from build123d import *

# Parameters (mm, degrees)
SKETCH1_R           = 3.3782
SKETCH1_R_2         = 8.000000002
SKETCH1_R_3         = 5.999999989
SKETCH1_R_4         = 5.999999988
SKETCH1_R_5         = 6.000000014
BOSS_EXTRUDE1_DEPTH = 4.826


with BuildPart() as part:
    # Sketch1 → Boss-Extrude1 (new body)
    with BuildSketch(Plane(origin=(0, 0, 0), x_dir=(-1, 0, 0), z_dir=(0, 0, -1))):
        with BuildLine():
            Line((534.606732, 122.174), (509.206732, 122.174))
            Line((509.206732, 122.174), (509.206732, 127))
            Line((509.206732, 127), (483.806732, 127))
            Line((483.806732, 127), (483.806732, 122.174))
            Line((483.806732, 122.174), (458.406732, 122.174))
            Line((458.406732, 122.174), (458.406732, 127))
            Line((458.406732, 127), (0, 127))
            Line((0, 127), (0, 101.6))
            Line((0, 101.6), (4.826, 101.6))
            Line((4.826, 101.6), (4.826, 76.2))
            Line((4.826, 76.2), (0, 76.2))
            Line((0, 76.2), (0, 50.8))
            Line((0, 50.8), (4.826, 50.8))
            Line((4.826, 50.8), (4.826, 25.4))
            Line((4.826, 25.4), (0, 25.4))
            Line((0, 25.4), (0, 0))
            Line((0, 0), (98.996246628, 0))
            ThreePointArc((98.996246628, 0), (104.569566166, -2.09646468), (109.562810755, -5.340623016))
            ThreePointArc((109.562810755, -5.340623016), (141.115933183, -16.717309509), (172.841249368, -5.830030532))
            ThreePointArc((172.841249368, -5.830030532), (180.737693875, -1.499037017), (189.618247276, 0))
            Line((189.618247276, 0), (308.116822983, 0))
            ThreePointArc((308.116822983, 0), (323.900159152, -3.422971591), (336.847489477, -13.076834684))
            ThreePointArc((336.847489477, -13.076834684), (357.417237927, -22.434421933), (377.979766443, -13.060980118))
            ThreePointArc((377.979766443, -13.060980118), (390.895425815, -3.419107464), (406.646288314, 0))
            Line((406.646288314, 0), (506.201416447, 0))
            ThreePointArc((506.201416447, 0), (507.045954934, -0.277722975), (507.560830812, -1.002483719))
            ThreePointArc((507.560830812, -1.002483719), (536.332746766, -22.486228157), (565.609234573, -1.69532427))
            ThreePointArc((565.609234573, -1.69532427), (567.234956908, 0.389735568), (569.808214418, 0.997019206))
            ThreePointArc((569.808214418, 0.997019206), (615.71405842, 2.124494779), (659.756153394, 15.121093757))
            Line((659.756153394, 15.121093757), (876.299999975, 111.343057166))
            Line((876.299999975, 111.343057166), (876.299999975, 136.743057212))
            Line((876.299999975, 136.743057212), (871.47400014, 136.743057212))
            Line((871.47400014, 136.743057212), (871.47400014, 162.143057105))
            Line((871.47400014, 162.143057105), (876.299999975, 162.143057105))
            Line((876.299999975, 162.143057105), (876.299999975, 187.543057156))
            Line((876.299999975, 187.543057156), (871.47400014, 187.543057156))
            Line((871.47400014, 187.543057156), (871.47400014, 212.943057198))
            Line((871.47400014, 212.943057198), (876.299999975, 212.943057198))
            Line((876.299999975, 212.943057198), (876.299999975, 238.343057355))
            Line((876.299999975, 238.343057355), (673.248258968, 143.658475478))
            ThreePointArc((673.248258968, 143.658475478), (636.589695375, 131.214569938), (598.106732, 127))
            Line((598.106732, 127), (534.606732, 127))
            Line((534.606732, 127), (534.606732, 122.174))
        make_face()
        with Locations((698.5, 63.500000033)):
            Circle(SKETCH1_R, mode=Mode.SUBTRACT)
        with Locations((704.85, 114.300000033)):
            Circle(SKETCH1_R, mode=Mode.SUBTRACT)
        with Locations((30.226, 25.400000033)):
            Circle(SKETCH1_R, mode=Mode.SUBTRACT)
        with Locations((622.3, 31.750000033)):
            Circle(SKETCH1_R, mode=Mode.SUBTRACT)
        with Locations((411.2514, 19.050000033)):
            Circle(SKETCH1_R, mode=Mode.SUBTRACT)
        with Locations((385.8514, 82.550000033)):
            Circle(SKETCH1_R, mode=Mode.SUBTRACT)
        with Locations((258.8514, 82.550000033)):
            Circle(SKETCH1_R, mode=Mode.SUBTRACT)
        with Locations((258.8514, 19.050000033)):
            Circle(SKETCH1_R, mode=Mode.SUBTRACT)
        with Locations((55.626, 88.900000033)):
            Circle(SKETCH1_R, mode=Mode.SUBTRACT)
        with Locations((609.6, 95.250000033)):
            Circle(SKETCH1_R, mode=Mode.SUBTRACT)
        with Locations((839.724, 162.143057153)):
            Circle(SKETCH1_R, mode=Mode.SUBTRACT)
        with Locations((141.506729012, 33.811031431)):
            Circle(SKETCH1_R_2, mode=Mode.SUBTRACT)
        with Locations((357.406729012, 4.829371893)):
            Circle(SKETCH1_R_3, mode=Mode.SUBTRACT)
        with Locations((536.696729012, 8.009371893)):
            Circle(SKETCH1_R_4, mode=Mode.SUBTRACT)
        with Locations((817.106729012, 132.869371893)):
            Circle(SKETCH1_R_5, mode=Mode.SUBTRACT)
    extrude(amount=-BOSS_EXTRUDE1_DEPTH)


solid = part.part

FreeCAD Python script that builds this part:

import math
import FreeCAD as App
import Part
import Sketcher
from FreeCAD import Vector
Q = App.Units.Quantity

doc = App.newDocument("Part")
params = doc.addObject("Spreadsheet::Sheet", "Params")
for row, (alias, value) in enumerate([
    ("sketch1_radius", "7 in"),
    ("sketch1_radius2", "1.5 in"),
    ("sketch1_width", "1 in"),
    ("sketch1_diameter", "0.266 in"),
    ("sketch1_width2", "2.5 in"),
    ("pad1_length", "0.19 in"),
], start=1):
    params.set(f"A{row}", alias)
    params.set(f"B{row}", "=" + value)
    params.setAlias(f"B{row}", alias)

body = doc.addObject("PartDesign::Body", "Body")

sketch1 = body.newObject("Sketcher::SketchObject", "Sketch")
sketch1.AttachmentSupport = (doc.getObject("XY_Plane"), [""])
sketch1.MapMode = "FlatFace"
sketch1.addGeometry(Part.LineSegment(Vector(-534.606732, 122.174, 0), Vector(-509.206732, 122.174, 0)), False)
sketch1.addGeometry(Part.LineSegment(Vector(-509.206732, 122.174, 0), Vector(-509.206732, 127, 0)), False)
sketch1.addGeometry(Part.LineSegment(Vector(-509.206732, 127, 0), Vector(-483.806732, 127, 0)), False)
sketch1.addGeometry(Part.LineSegment(Vector(-483.806732, 127, 0), Vector(-483.806732, 122.174, 0)), False)
sketch1.addGeometry(Part.LineSegment(Vector(-483.806732, 122.174, 0), Vector(-458.406732, 122.174, 0)), False)
sketch1.addGeometry(Part.LineSegment(Vector(-458.406732, 122.174, 0), Vector(-458.406732, 127, 0)), False)
sketch1.addGeometry(Part.LineSegment(Vector(-458.406732, 127, 0), Vector(0, 127, 0)), False)
sketch1.addGeometry(Part.LineSegment(Vector(0, 127, 0), Vector(0, 101.6, 0)), False)
sketch1.addGeometry(Part.LineSegment(Vector(0, 101.6, 0), Vector(-4.826, 101.6, 0)), False)
sketch1.addGeometry(Part.LineSegment(Vector(-4.826, 101.6, 0), Vector(-4.826, 76.2, 0)), False)
sketch1.addGeometry(Part.LineSegment(Vector(-4.826, 76.2, 0), Vector(0, 76.2, 0)), False)
sketch1.addGeometry(Part.LineSegment(Vector(0, 76.2, 0), Vector(0, 50.8, 0)), False)
sketch1.addGeometry(Part.LineSegment(Vector(0, 50.8, 0), Vector(-4.826, 50.8, 0)), False)
sketch1.addGeometry(Part.LineSegment(Vector(-4.826, 50.8, 0), Vector(-4.826, 25.4, 0)), False)
sketch1.addGeometry(Part.LineSegment(Vector(-4.826, 25.4, 0), Vector(0, 25.4, 0)), False)
sketch1.addGeometry(Part.LineSegment(Vector(0, 25.4, 0), Vector(0, 0, 0)), False)
sketch1.addGeometry(Part.LineSegment(Vector(0, 0, 0), Vector(-98.996247, 0, 0)), False)
sketch1.addGeometry(Part.ArcOfCircle(Part.Circle(Vector(-92.132061, -26.704399, 0), Vector(0, 0, 1), 27.572485), math.radians(104.415421), math.radians(129.211079)), False)
sketch1.addGeometry(Part.ArcOfCircle(Part.Circle(Vector(-141.506729, 33.811031, 0), Vector(0, 0, 1), 50.529852), math.radians(-128.324824), math.radians(-50.788921)), False)
sketch1.addGeometry(Part.ArcOfCircle(Part.Circle(Vector(-189.618247, -27.054482, 0), Vector(0, 0, 1), 27.054482), math.radians(51.675176), math.radians(90)), False)
sketch1.addGeometry(Part.LineSegment(Vector(-189.618247, 0, 0), Vector(-308.116823, 0, 0)), False)
sketch1.addGeometry(Part.ArcOfCircle(Part.Circle(Vector(-308.116823, -38.1, 0), Vector(0, 0, 1), 38.1), math.radians(90), math.radians(138.945547)), False)
sketch1.addGeometry(Part.ArcOfCircle(Part.Circle(Vector(-357.406729, 4.829372, 0), Vector(0, 0, 1), 27.263796), math.radians(-138.989717), math.radians(-41.054453)), False)
sketch1.addGeometry(Part.ArcOfCircle(Part.Circle(Vector(-406.646288, -37.989441, 0), Vector(0, 0, 1), 37.989441), math.radians(41.010283), math.radians(90)), False)
sketch1.addGeometry(Part.LineSegment(Vector(-406.646288, 0, 0), Vector(-506.201416, 0, 0)), False)
sketch1.addGeometry(Part.ArcOfCircle(Part.Circle(Vector(-506.201416, -1.422956, 0), Vector(0, 0, 1), 1.422956), math.radians(90), math.radians(162.812942)), False)
sketch1.addGeometry(Part.ArcOfCircle(Part.Circle(Vector(-536.696729, 8.009372, 0), Vector(0, 0, 1), 30.497772), math.radians(-161.445292), math.radians(-17.187058)), False)
sketch1.addGeometry(Part.ArcOfCircle(Part.Circle(Vector(-569.384359, -2.962473, 0), Vector(0, 0, 1), 3.982114), math.radians(18.554708), math.radians(96.110127)), False)
sketch1.addGeometry(Part.ArcOfCircle(Part.Circle(Vector(-588.488955, 175.505197, 0), Vector(0, 0, 1), 175.505197), math.radians(-113.958126), math.radians(-83.889873)), False)
sketch1.addGeometry(Part.LineSegment(Vector(-659.756153, 15.121094, 0), Vector(-876.3, 111.343057, 0)), False)
sketch1.addGeometry(Part.LineSegment(Vector(-876.3, 111.343057, 0), Vector(-876.3, 136.743057, 0)), False)
sketch1.addGeometry(Part.LineSegment(Vector(-876.3, 136.743057, 0), Vector(-871.474, 136.743057, 0)), False)
sketch1.addGeometry(Part.LineSegment(Vector(-871.474, 136.743057, 0), Vector(-871.474, 162.143057, 0)), False)
sketch1.addGeometry(Part.LineSegment(Vector(-871.474, 162.143057, 0), Vector(-876.3, 162.143057, 0)), False)
sketch1.addGeometry(Part.LineSegment(Vector(-876.3, 162.143057, 0), Vector(-876.3, 187.543057, 0)), False)
sketch1.addGeometry(Part.LineSegment(Vector(-876.3, 187.543057, 0), Vector(-871.474, 187.543057, 0)), False)
sketch1.addGeometry(Part.LineSegment(Vector(-871.474, 187.543057, 0), Vector(-871.474, 212.943057, 0)), False)
sketch1.addGeometry(Part.LineSegment(Vector(-871.474, 212.943057, 0), Vector(-876.3, 212.943057, 0)), False)
sketch1.addGeometry(Part.LineSegment(Vector(-876.3, 212.943057, 0), Vector(-876.3, 238.343057, 0)), False)
sketch1.addGeometry(Part.LineSegment(Vector(-876.3, 238.343057, 0), Vector(-673.248259, 143.658475, 0)), False)
sketch1.addGeometry(Part.ArcOfCircle(Part.Circle(Vector(-598.106732, 304.8, 0), Vector(0, 0, 1), 177.8), math.radians(-115), math.radians(-90)), False)
sketch1.addGeometry(Part.LineSegment(Vector(-598.106732, 127, 0), Vector(-534.606732, 127, 0)), False)
sketch1.addGeometry(Part.LineSegment(Vector(-534.606732, 127, 0), Vector(-534.606732, 122.174, 0)), False)
sketch1.addGeometry(Part.Circle(Vector(-30.226, 25.4, 0), Vector(0, 0, 1), 3.3782), False)
sketch1.addGeometry(Part.Circle(Vector(-141.506729, 33.811031, 0), Vector(0, 0, 1), 8), False)
sketch1.addGeometry(Part.Circle(Vector(-258.8514, 19.05, 0), Vector(0, 0, 1), 3.3782), False)
sketch1.addGeometry(Part.Circle(Vector(-357.406729, 4.829372, 0), Vector(0, 0, 1), 6), False)
sketch1.addGeometry(Part.Circle(Vector(-411.2514, 19.05, 0), Vector(0, 0, 1), 3.3782), False)
sketch1.addGeometry(Part.Circle(Vector(-536.696729, 8.009372, 0), Vector(0, 0, 1), 6), False)
sketch1.addGeometry(Part.Circle(Vector(-622.3, 31.75, 0), Vector(0, 0, 1), 3.3782), False)
sketch1.addGeometry(Part.Circle(Vector(-698.5, 63.5, 0), Vector(0, 0, 1), 3.3782), False)
sketch1.addGeometry(Part.Circle(Vector(-55.626, 88.9, 0), Vector(0, 0, 1), 3.3782), False)
sketch1.addGeometry(Part.Circle(Vector(-258.8514, 82.55, 0), Vector(0, 0, 1), 3.3782), False)
sketch1.addGeometry(Part.Circle(Vector(-385.8514, 82.55, 0), Vector(0, 0, 1), 3.3782), False)
sketch1.addGeometry(Part.Circle(Vector(-609.6, 95.25, 0), Vector(0, 0, 1), 3.3782), False)
sketch1.addGeometry(Part.Circle(Vector(-704.85, 114.3, 0), Vector(0, 0, 1), 3.3782), False)
sketch1.addGeometry(Part.Circle(Vector(-817.106729, 132.869372, 0), Vector(0, 0, 1), 6), False)
sketch1.addGeometry(Part.Circle(Vector(-839.724, 162.143057, 0), Vector(0, 0, 1), 3.3782), False)
sketch1.addConstraint(Sketcher.Constraint("Coincident", 0, 2, 1, 1))
sketch1.addConstraint(Sketcher.Constraint("Coincident", 1, 2, 2, 1))
sketch1.addConstraint(Sketcher.Constraint("Coincident", 2, 2, 3, 1))
sketch1.addConstraint(Sketcher.Constraint("Coincident", 3, 2, 4, 1))
sketch1.addConstraint(Sketcher.Constraint("Coincident", 4, 2, 5, 1))
sketch1.addConstraint(Sketcher.Constraint("Coincident", 5, 2, 6, 1))
sketch1.addConstraint(Sketcher.Constraint("Coincident", 6, 2, 7, 1))
sketch1.addConstraint(Sketcher.Constraint("Coincident", 7, 2, 8, 1))
sketch1.addConstraint(Sketcher.Constraint("Coincident", 8, 2, 9, 1))
sketch1.addConstraint(Sketcher.Constraint("Coincident", 9, 2, 10, 1))
sketch1.addConstraint(Sketcher.Constraint("Coincident", 10, 2, 11, 1))
sketch1.addConstraint(Sketcher.Constraint("Coincident", 11, 2, 12, 1))
sketch1.addConstraint(Sketcher.Constraint("Coincident", 12, 2, 13, 1))
sketch1.addConstraint(Sketcher.Constraint("Coincident", 13, 2, 14, 1))
sketch1.addConstraint(Sketcher.Constraint("Coincident", 14, 2, 15, 1))
sketch1.addConstraint(Sketcher.Constraint("Coincident", 15, 2, 16, 1))
sketch1.addConstraint(Sketcher.Constraint("Coincident", 16, 2, 17, 1))
sketch1.addConstraint(Sketcher.Constraint("Tangent", 17, 2, 18, 2))
sketch1.addConstraint(Sketcher.Constraint("Tangent", 18, 1, 19, 1))
sketch1.addConstraint(Sketcher.Constraint("Tangent", 19, 2, 20, 1))
sketch1.addConstraint(Sketcher.Constraint("Tangent", 20, 2, 21, 1))
sketch1.addConstraint(Sketcher.Constraint("Tangent", 21, 2, 22, 2))
sketch1.addConstraint(Sketcher.Constraint("Tangent", 22, 1, 23, 1))
sketch1.addConstraint(Sketcher.Constraint("Tangent", 23, 2, 24, 1))
sketch1.addConstraint(Sketcher.Constraint("Tangent", 24, 2, 25, 1))
sketch1.addConstraint(Sketcher.Constraint("Tangent", 25, 2, 26, 2))
sketch1.addConstraint(Sketcher.Constraint("Tangent", 26, 1, 27, 1))
sketch1.addConstraint(Sketcher.Constraint("Tangent", 27, 2, 28, 2))
sketch1.addConstraint(Sketcher.Constraint("Tangent", 28, 1, 29, 1))
sketch1.addConstraint(Sketcher.Constraint("Coincident", 29, 2, 30, 1))
sketch1.addConstraint(Sketcher.Constraint("Coincident", 30, 2, 31, 1))
sketch1.addConstraint(Sketcher.Constraint("Coincident", 31, 2, 32, 1))
sketch1.addConstraint(Sketcher.Constraint("Coincident", 32, 2, 33, 1))
sketch1.addConstraint(Sketcher.Constraint("Coincident", 33, 2, 34, 1))
sketch1.addConstraint(Sketcher.Constraint("Coincident", 34, 2, 35, 1))
sketch1.addConstraint(Sketcher.Constraint("Coincident", 35, 2, 36, 1))
sketch1.addConstraint(Sketcher.Constraint("Coincident", 36, 2, 37, 1))
sketch1.addConstraint(Sketcher.Constraint("Coincident", 37, 2, 38, 1))
sketch1.addConstraint(Sketcher.Constraint("Coincident", 38, 2, 39, 1))
sketch1.addConstraint(Sketcher.Constraint("Tangent", 39, 2, 40, 1))
sketch1.addConstraint(Sketcher.Constraint("Tangent", 40, 2, 41, 1))
sketch1.addConstraint(Sketcher.Constraint("Coincident", 41, 2, 42, 1))
sketch1.addConstraint(Sketcher.Constraint("Coincident", 42, 2, 0, 1))
sketch1.addConstraint(Sketcher.Constraint("Horizontal", 0))
sketch1.addConstraint(Sketcher.Constraint("Vertical", 1))
sketch1.addConstraint(Sketcher.Constraint("Horizontal", 2))
sketch1.addConstraint(Sketcher.Constraint("Vertical", 3))
sketch1.addConstraint(Sketcher.Constraint("Horizontal", 4))
sketch1.addConstraint(Sketcher.Constraint("Vertical", 5))
sketch1.addConstraint(Sketcher.Constraint("Horizontal", 6))
sketch1.addConstraint(Sketcher.Constraint("Vertical", 7))
sketch1.addConstraint(Sketcher.Constraint("Horizontal", 8))
sketch1.addConstraint(Sketcher.Constraint("Vertical", 9))
sketch1.addConstraint(Sketcher.Constraint("Horizontal", 10))
sketch1.addConstraint(Sketcher.Constraint("Vertical", 11))
sketch1.addConstraint(Sketcher.Constraint("Horizontal", 12))
sketch1.addConstraint(Sketcher.Constraint("Vertical", 13))
sketch1.addConstraint(Sketcher.Constraint("Horizontal", 14))
sketch1.addConstraint(Sketcher.Constraint("Vertical", 15))
sketch1.addConstraint(Sketcher.Constraint("Horizontal", 16))
sketch1.addConstraint(Sketcher.Constraint("Horizontal", 20))
sketch1.addConstraint(Sketcher.Constraint("Horizontal", 24))
sketch1.addConstraint(Sketcher.Constraint("Vertical", 30))
sketch1.addConstraint(Sketcher.Constraint("Horizontal", 31))
sketch1.addConstraint(Sketcher.Constraint("Vertical", 32))
sketch1.addConstraint(Sketcher.Constraint("Horizontal", 33))
sketch1.addConstraint(Sketcher.Constraint("Vertical", 34))
sketch1.addConstraint(Sketcher.Constraint("Horizontal", 35))
sketch1.addConstraint(Sketcher.Constraint("Vertical", 36))
sketch1.addConstraint(Sketcher.Constraint("Horizontal", 37))
sketch1.addConstraint(Sketcher.Constraint("Vertical", 38))
sketch1.addConstraint(Sketcher.Constraint("Horizontal", 41))
sketch1.addConstraint(Sketcher.Constraint("Vertical", 42))
sketch1.addConstraint(Sketcher.Constraint("Coincident", 15, 2, -1, 1))
sketch1.addConstraint(Sketcher.Constraint("Coincident", 44, 3, 18, 3))
sketch1.addConstraint(Sketcher.Constraint("Coincident", 46, 3, 22, 3))
sketch1.addConstraint(Sketcher.Constraint("Coincident", 48, 3, 26, 3))
sketch1.addConstraint(Sketcher.Constraint("Equal", 43, 45))
sketch1.addConstraint(Sketcher.Constraint("Equal", 45, 47))
sketch1.addConstraint(Sketcher.Constraint("Equal", 46, 48))
sketch1.addConstraint(Sketcher.Constraint("Equal", 47, 49))
sketch1.addConstraint(Sketcher.Constraint("Equal", 49, 50))
sketch1.addConstraint(Sketcher.Constraint("Equal", 50, 51))
sketch1.addConstraint(Sketcher.Constraint("Equal", 51, 52))
sketch1.addConstraint(Sketcher.Constraint("Equal", 52, 53))
sketch1.addConstraint(Sketcher.Constraint("Equal", 53, 54))
sketch1.addConstraint(Sketcher.Constraint("Equal", 54, 55))
sketch1.addConstraint(Sketcher.Constraint("Equal", 48, 56))
sketch1.addConstraint(Sketcher.Constraint("Equal", 55, 57))
sketch1.addConstraint(Sketcher.Constraint("PointOnObject", 6, 2, -2))
sketch1.addConstraint(Sketcher.Constraint("PointOnObject", 10, 2, -2))
sketch1.addConstraint(Sketcher.Constraint("PointOnObject", 19, 2, -1))
sketch1.addConstraint(Sketcher.Constraint("PointOnObject", 23, 2, -1))
sketch1.addConstraint(Sketcher.Constraint("Horizontal", 45, 3, 47, 3))
sketch1.addConstraint(Sketcher.Constraint("Horizontal", 52, 3, 53, 3))
sketch1.addConstraint(Sketcher.Constraint("Horizontal", 0, 2, 3, 2))
sketch1.addConstraint(Sketcher.Constraint("Horizontal", 2, 2, 5, 2))
sketch1.addConstraint(Sketcher.Constraint("Horizontal", 43, 3, 13, 2))
sketch1.addConstraint(Sketcher.Constraint("Horizontal", 57, 3, 32, 2))
sketch1.addConstraint(Sketcher.Constraint("Horizontal", 6, 2, 40, 2))
sketch1.addConstraint(Sketcher.Constraint("Vertical", 45, 3, 52, 3))
sketch1.addConstraint(Sketcher.Constraint("Vertical", 9, 2, 12, 2))
sketch1.addConstraint(Sketcher.Constraint("Vertical", 30, 2, 33, 2))
sketch1.addConstraint(Sketcher.Constraint("Vertical", 32, 2, 35, 2))
sketch1.addConstraint(Sketcher.Constraint("Vertical", 34, 2, 37, 2))
sketch1.addConstraint(Sketcher.Constraint("Equal", 0, 2))
sketch1.addConstraint(Sketcher.Constraint("Equal", 2, 4))
sketch1.addConstraint(Sketcher.Constraint("Equal", 14, 31))
sketch1.addConstraint(Sketcher.Constraint("Equal", 37, 1))
sketch1.addConstraint(Sketcher.Constraint("Equal", 4, 7))
sketch1.addConstraint(Sketcher.Constraint("Equal", 7, 9))
sketch1.addConstraint(Sketcher.Constraint("Equal", 9, 11))
sketch1.addConstraint(Sketcher.Constraint("Equal", 11, 13))
sketch1.addConstraint(Sketcher.Constraint("Equal", 13, 15))
sketch1.addConstraint(Sketcher.Constraint("Equal", 15, 30))
sketch1.addConstraint(Sketcher.Constraint("Equal", 30, 32))
sketch1.addConstraint(Sketcher.Constraint("Equal", 32, 34))
sketch1.addConstraint(Sketcher.Constraint("Equal", 34, 36))
sketch1.addConstraint(Sketcher.Constraint("Equal", 36, 38))
sketch1.addConstraint(Sketcher.Constraint("Radius", 40, Q("7 in")))
sketch1.addConstraint(Sketcher.Constraint("Radius", 21, Q("1.5 in")))
sketch1.addConstraint(Sketcher.Constraint("DistanceX", 0, 1, 0, 2, Q("1 in")))
sketch1.addConstraint(Sketcher.Constraint("Diameter", 43, Q("0.266 in")))
sketch1.addConstraint(Sketcher.Constraint("DistanceX", 41, 1, 41, 2, Q("2.5 in")))
sketch1.addConstraint(Sketcher.Constraint("DistanceX", 54, 3, -1, 1, Q("24 in")))
sketch1.addConstraint(Sketcher.Constraint("Angle", 39, Q("-25 deg")))
sketch1.addConstraint(Sketcher.Constraint("DistanceX", 8, 2, 8, 1, Q("0.19 in")))
sketch1.addConstraint(Sketcher.Constraint("DistanceX", 49, 3, -1, 1, Q("24.5 in")))
sketch1.addConstraint(Sketcher.Constraint("DistanceX", 50, 3, -1, 1, Q("27.5 in")))
sketch1.addConstraint(Sketcher.Constraint("DistanceY", -1, 1, 50, 3, Q("2.5 in")))
sketch1.addConstraint(Sketcher.Constraint("DistanceY", -1, 1, 51, 3, Q("3.5 in")))
sketch1.addConstraint(Sketcher.Constraint("DistanceY", -1, 1, 55, 3, Q("4.5 in")))
sketch1.addConstraint(Sketcher.Constraint("DistanceX", 29, 2, -1, 1, Q("34.5 in")))
sketch1.addConstraint(Sketcher.Constraint("Diameter", 44, Q("16 mm")))
sketch1.addConstraint(Sketcher.Constraint("Diameter", 46, Q("12 mm")))
sketch1.addConstraint(Sketcher.Constraint("DistanceX", 43, 3, -1, 1, Q("1.19 in")))
sketch1.addConstraint(Sketcher.Constraint("DistanceY", -1, 1, 45, 3, Q("0.75 in")))
sketch1.addConstraint(Sketcher.Constraint("DistanceY", -1, 1, 49, 3, Q("1.25 in")))
sketch1.addConstraint(Sketcher.Constraint("DistanceX", 51, 3, -1, 1, Q("2.19 in")))
sketch1.addConstraint(Sketcher.Constraint("DistanceY", -1, 1, 52, 3, Q("3.25 in")))
sketch1.addConstraint(Sketcher.Constraint("DistanceY", -1, 1, 54, 3, Q("3.75 in")))
sketch1.addConstraint(Sketcher.Constraint("DistanceX", 55, 3, -1, 1, Q("27.75 in")))
sketch1.addConstraint(Sketcher.Constraint("DistanceX", 57, 3, -1, 1, Q("33.06 in")))
sketch1.addConstraint(Sketcher.Constraint("DistanceX", 45, 3, -1, 1, Q("10.191 in")))
sketch1.addConstraint(Sketcher.Constraint("DistanceX", 47, 3, -1, 1, Q("16.191 in")))
sketch1.addConstraint(Sketcher.Constraint("DistanceX", 53, 3, -1, 1, Q("15.191 in")))
sketch1.addConstraint(Sketcher.Constraint("Radius", 23, Q("37.989441 mm")))
sketch1.addConstraint(Sketcher.Constraint("Radius", 17, Q("27.572485 mm")))
sketch1.addConstraint(Sketcher.Constraint("Radius", 18, Q("50.529852 mm")))
sketch1.addConstraint(Sketcher.Constraint("Radius", 19, Q("27.054482 mm")))
sketch1.addConstraint(Sketcher.Constraint("Radius", 22, Q("27.263796 mm")))
sketch1.addConstraint(Sketcher.Constraint("Radius", 25, Q("1.422956 mm")))
sketch1.addConstraint(Sketcher.Constraint("Radius", 26, Q("30.497772 mm")))
sketch1.addConstraint(Sketcher.Constraint("Radius", 27, Q("3.982114 mm")))
sketch1.addConstraint(Sketcher.Constraint("Radius", 28, Q("175.505197 mm")))
sketch1.addConstraint(Sketcher.Constraint("DistanceX", 6, 1, 6, 2, Q("458.406732 mm")))
sketch1.addConstraint(Sketcher.Constraint("DistanceX", 24, 2, 24, 1, Q("99.555128 mm")))
sketch1.addConstraint(Sketcher.Constraint("DistanceY", 17, 3, -1, 1, Q("26.704399 mm")))
sketch1.addConstraint(Sketcher.Constraint("Distance", 29, Q("236.959709 mm")))
sketch1.addConstraint(Sketcher.Constraint("DistanceX", 16, 2, 16, 1, Q("98.996247 mm")))
sketch1.addConstraint(Sketcher.Constraint("DistanceX", 20, 2, 20, 1, Q("118.498576 mm")))
sketch1.addConstraint(Sketcher.Constraint("DistanceX", 18, 3, -1, 1, Q("141.506729 mm")))
sketch1.addConstraint(Sketcher.Constraint("DistanceX", 22, 3, -1, 1, Q("357.406729 mm")))
sketch1.addConstraint(Sketcher.Constraint("DistanceX", 26, 3, -1, 1, Q("536.696729 mm")))
sketch1.addConstraint(Sketcher.Constraint("DistanceX", 27, 3, -1, 1, Q("569.384359 mm")))
sketch1.addConstraint(Sketcher.Constraint("DistanceX", 56, 3, -1, 1, Q("817.106729 mm")))
sketch1.addConstraint(Sketcher.Constraint("DistanceY", -1, 1, 56, 3, Q("132.869372 mm")))
sketch1.setExpression("Constraints[119]", "Params.sketch1_radius")
sketch1.setExpression("Constraints[120]", "Params.sketch1_radius2")
sketch1.setExpression("Constraints[121]", "Params.sketch1_width")
sketch1.setExpression("Constraints[122]", "Params.sketch1_diameter")
sketch1.setExpression("Constraints[123]", "Params.sketch1_width2")
pad1 = body.newObject("PartDesign::Pad", "Pad")
pad1.Profile = sketch1
pad1.setExpression("Length", "Params.pad1_length")

doc.recompute()
